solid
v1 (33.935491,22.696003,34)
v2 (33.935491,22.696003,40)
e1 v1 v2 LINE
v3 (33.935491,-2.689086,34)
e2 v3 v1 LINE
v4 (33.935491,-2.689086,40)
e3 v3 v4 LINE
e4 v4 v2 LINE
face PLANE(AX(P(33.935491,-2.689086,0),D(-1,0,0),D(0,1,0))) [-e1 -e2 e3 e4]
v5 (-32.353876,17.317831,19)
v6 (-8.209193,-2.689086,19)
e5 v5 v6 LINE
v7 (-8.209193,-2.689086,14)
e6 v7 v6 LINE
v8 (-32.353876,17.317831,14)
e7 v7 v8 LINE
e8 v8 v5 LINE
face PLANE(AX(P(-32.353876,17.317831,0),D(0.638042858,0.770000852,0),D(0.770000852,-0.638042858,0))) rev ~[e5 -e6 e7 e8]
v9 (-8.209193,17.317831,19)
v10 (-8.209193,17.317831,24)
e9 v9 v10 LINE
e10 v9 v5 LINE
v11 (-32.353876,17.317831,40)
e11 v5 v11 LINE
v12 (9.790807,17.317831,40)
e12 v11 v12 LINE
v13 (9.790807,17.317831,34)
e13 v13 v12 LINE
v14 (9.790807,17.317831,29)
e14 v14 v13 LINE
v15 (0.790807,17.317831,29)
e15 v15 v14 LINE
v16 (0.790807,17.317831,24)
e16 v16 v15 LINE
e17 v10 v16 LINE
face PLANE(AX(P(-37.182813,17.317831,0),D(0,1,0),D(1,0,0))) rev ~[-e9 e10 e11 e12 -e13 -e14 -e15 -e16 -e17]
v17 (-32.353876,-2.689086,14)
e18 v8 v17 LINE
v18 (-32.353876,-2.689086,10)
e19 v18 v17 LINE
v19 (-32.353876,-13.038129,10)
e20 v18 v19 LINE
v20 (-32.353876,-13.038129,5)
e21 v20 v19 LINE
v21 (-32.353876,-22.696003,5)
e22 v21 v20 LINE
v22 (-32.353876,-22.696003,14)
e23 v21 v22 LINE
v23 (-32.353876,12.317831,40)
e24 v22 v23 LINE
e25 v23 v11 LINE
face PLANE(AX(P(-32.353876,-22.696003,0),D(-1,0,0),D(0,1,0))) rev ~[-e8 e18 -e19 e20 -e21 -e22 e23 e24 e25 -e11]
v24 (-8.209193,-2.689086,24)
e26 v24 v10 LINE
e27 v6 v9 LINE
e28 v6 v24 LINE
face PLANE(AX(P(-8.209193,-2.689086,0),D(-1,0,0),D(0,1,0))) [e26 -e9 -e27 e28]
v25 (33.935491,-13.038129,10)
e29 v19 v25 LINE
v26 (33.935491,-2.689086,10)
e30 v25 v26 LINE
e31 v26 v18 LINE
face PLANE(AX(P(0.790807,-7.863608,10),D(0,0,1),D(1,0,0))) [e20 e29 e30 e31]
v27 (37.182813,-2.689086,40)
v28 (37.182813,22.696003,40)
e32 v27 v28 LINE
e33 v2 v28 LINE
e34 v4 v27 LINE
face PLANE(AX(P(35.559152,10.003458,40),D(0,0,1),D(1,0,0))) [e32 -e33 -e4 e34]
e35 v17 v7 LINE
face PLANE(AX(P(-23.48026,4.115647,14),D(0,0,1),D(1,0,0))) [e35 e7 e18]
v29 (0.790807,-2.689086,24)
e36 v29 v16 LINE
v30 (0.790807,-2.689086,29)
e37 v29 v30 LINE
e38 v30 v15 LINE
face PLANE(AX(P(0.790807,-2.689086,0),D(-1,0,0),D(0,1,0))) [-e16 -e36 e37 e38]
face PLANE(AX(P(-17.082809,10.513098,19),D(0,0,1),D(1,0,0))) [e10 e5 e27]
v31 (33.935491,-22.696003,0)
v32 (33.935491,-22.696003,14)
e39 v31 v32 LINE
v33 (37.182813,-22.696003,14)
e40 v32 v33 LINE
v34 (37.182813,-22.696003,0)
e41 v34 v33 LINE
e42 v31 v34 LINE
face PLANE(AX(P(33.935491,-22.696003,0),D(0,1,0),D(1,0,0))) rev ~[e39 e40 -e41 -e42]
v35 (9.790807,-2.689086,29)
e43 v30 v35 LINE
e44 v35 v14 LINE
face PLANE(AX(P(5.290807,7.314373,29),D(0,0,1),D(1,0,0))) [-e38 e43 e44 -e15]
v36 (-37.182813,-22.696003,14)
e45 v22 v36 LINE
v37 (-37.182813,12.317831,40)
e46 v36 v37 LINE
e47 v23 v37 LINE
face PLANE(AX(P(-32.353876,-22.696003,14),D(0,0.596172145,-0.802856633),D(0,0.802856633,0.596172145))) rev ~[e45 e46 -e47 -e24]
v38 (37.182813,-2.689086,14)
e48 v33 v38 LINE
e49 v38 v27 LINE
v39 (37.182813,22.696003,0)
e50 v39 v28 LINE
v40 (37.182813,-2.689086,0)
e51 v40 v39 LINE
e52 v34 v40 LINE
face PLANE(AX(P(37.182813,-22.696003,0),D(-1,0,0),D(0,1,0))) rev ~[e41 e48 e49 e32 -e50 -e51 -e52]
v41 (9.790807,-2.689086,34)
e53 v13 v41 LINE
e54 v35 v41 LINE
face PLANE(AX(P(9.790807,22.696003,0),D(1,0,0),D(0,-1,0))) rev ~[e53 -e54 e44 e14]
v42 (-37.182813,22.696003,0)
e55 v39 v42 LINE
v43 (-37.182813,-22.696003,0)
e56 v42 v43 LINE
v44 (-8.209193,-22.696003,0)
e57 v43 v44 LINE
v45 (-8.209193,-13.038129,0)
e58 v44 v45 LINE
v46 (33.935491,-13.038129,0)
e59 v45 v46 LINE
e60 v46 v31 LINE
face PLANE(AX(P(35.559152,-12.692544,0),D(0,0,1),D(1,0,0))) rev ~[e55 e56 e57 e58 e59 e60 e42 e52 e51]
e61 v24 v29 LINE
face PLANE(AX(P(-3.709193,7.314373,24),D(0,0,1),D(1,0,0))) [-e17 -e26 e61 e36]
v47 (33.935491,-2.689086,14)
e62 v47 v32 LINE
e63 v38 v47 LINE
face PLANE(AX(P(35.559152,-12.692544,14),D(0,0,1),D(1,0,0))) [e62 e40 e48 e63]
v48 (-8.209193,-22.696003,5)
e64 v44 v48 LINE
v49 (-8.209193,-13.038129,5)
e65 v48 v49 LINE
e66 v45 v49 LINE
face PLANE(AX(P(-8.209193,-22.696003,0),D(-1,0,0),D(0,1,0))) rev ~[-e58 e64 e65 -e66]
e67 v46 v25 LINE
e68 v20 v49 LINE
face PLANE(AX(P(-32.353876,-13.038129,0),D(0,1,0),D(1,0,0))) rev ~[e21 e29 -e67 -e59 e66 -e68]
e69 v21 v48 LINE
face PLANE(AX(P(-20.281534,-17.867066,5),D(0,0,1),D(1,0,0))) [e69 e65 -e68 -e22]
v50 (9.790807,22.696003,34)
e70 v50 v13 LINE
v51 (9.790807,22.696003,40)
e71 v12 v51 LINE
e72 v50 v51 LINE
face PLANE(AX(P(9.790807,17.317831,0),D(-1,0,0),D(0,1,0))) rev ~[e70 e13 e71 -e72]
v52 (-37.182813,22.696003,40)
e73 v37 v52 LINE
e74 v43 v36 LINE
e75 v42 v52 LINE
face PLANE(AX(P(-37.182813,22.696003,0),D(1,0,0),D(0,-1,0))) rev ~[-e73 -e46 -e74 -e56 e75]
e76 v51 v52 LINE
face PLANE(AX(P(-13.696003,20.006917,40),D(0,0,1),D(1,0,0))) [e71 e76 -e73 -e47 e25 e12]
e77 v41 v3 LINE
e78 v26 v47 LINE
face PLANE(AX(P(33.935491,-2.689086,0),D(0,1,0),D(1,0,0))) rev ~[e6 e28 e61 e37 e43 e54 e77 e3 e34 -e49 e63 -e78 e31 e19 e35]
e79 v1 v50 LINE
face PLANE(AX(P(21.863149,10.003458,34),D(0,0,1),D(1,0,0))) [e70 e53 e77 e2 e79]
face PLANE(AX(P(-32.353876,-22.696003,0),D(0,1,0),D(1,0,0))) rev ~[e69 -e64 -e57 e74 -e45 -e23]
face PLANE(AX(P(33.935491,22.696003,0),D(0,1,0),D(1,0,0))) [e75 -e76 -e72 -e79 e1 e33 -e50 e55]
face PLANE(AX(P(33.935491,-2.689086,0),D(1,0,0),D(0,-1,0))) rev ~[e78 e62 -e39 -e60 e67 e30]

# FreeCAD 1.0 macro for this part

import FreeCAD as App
import Part
import Sketcher
Q = App.Units.Quantity

doc = App.newDocument("Part")
body = doc.addObject("PartDesign::Body", "Body")

# Sketch on XY plane
sketch1 = doc.addObject("Sketcher::SketchObject", "Sketch")
body.addObject(sketch1)
sketch1.AttachmentSupport = (doc.XY_Plane, [""])
sketch1.MapMode = "FlatFace"
sketch1.addGeometry(Part.LineSegment(App.Vector(-37.2, 17.3, 0), App.Vector(-37.2, -22.7, 0)), False)
sketch1.addGeometry(Part.LineSegment(App.Vector(-37.2, -22.7, 0), App.Vector(-32.4, -22.7, 0)), False)
sketch1.addGeometry(Part.LineSegment(App.Vector(-32.4, -22.7, 0), App.Vector(-32.4, 17.3, 0)), False)
sketch1.addGeometry(Part.LineSegment(App.Vector(-32.4, 17.3, 0), App.Vector(-37.2, 17.3, 0)), False)
sketch1.addConstraint(Sketcher.Constraint("Coincident", 0, 2, 1, 1))
sketch1.addConstraint(Sketcher.Constraint("Coincident", 1, 2, 2, 1))
sketch1.addConstraint(Sketcher.Constraint("Coincident", 2, 2, 3, 1))
sketch1.addConstraint(Sketcher.Constraint("Coincident", 3, 2, 0, 1))
sketch1.addConstraint(Sketcher.Constraint("Vertical", 0))
sketch1.addConstraint(Sketcher.Constraint("Horizontal", 1))
sketch1.addConstraint(Sketcher.Constraint("Vertical", 2))
sketch1.addConstraint(Sketcher.Constraint("Horizontal", 3))
sketch1.addConstraint(Sketcher.Constraint("DistanceX", 1, 1, 1, 2, Q("4.828937 mm")))
sketch1.addConstraint(Sketcher.Constraint("DistanceY", 0, 2, 0, 1, Q("40.013834 mm")))
sketch1.addConstraint(Sketcher.Constraint("DistanceY", -1, 1, 2, 2, Q("17.317831 mm")))
sketch1.addConstraint(Sketcher.Constraint("DistanceX", 0, 2, -1, 1, Q("37.182813 mm")))
pad1 = doc.addObject("PartDesign::Pad", "Pad")
body.addObject(pad1)
pad1.Profile = sketch1
pad1.Length = 40

# Sketch on YZ plane
sketch2 = doc.addObject("Sketcher::SketchObject", "Sketch001")
body.addObject(sketch2)
sketch2.AttachmentSupport = (doc.YZ_Plane, [""])
sketch2.MapMode = "FlatFace"
sketch2.AttachmentOffset = App.Placement(App.Vector(0, 0, -32.353876), App.Rotation())
sketch2.addGeometry(Part.LineSegment(App.Vector(-23, 40, 0), App.Vector(-23, 14, 0)), False)
sketch2.addGeometry(Part.LineSegment(App.Vector(-23, 14, 0), App.Vector(12, 40, 0)), False)
sketch2.addGeometry(Part.LineSegment(App.Vector(12, 40, 0), App.Vector(-23, 40, 0)), False)
sketch2.addConstraint(Sketcher.Constraint("Coincident", 0, 2, 1, 1))
sketch2.addConstraint(Sketcher.Constraint("Coincident", 1, 2, 2, 1))
sketch2.addConstraint(Sketcher.Constraint("Coincident", 2, 2, 0, 1))
sketch2.addConstraint(Sketcher.Constraint("Vertical", 0))
sketch2.addConstraint(Sketcher.Constraint("Horizontal", 2))
sketch2.addConstraint(Sketcher.Constraint("DistanceY", 0, 2, 0, 1, Q("26 mm")))
sketch2.addConstraint(Sketcher.Constraint("DistanceY", -1, 1, 0, 2, Q("14 mm")))
sketch2.addConstraint(Sketcher.Constraint("DistanceX", 2, 2, 2, 1, Q("35.013834 mm")))
sketch2.addConstraint(Sketcher.Constraint("DistanceX", -1, 1, 1, 2, Q("12.317831 mm")))
pocket1 = doc.addObject("PartDesign::Pocket", "Pocket")
body.addObject(pocket1)
pocket1.Profile = sketch2
pocket1.Length = 25

# Sketch on XY plane
sketch3 = doc.addObject("Sketcher::SketchObject", "Sketch002")
body.addObject(sketch3)
sketch3.AttachmentSupport = (doc.XY_Plane, [""])
sketch3.MapMode = "FlatFace"
sketch3.addGeometry(Part.LineSegment(App.Vector(-37, 23, 0), App.Vector(-37, 17, 0)), False)
sketch3.addGeometry(Part.LineSegment(App.Vector(-37, 17, 0), App.Vector(10, 17, 0)), False)
sketch3.addGeometry(Part.LineSegment(App.Vector(10, 17, 0), App.Vector(10, 23, 0)), False)
sketch3.addGeometry(Part.LineSegment(App.Vector(10, 23, 0), App.Vector(-37, 23, 0)), False)
sketch3.addConstraint(Sketcher.Constraint("Coincident", 0, 2, 1, 1))
sketch3.addConstraint(Sketcher.Constraint("Coincident", 1, 2, 2, 1))
sketch3.addConstraint(Sketcher.Constraint("Coincident", 2, 2, 3, 1))
sketch3.addConstraint(Sketcher.Constraint("Coincident", 3, 2, 0, 1))
sketch3.addConstraint(Sketcher.Constraint("Vertical", 0))
sketch3.addConstraint(Sketcher.Constraint("Horizontal", 1))
sketch3.addConstraint(Sketcher.Constraint("Vertical", 2))
sketch3.addConstraint(Sketcher.Constraint("Horizontal", 3))
sketch3.addConstraint(Sketcher.Constraint("DistanceX", 1, 1, 1, 2, Q("46.973621 mm")))
sketch3.addConstraint(Sketcher.Constraint("DistanceY", 0, 2, 0, 1, Q("5.378172 mm")))
sketch3.addConstraint(Sketcher.Constraint("DistanceY", -1, 1, 0, 2, Q("17.317831 mm")))
sketch3.addConstraint(Sketcher.Constraint("DistanceX", 0, 2, -1, 1, Q("37.182813 mm")))
pad2 = doc.addObject("PartDesign::Pad", "Pad001")
body.addObject(pad2)
pad2.Profile = sketch3
pad2.Length = 40

# Sketch on XY plane
sketch4 = doc.addObject("Sketcher::SketchObject", "Sketch003")
body.addObject(sketch4)
sketch4.AttachmentSupport = (doc.XY_Plane, [""])
sketch4.MapMode = "FlatFace"
sketch4.addGeometry(Part.LineSegment(App.Vector(-8, -3, 0), App.Vector(-32, 17, 0)), False)
sketch4.addGeometry(Part.LineSegment(App.Vector(-32, 17, 0), App.Vector(-32, -3, 0)), False)
sketch4.addGeometry(Part.LineSegment(App.Vector(-32, -3, 0), App.Vector(-8, -3, 0)), False)
sketch4.addConstraint(Sketcher.Constraint("Coincident", 0, 2, 1, 1))
sketch4.addConstraint(Sketcher.Constraint("Coincident", 1, 2, 2, 1))
sketch4.addConstraint(Sketcher.Constraint("Coincident", 2, 2, 0, 1))
sketch4.addConstraint(Sketcher.Constraint("Vertical", 1))
sketch4.addConstraint(Sketcher.Constraint("Horizontal", 2))
sketch4.addConstraint(Sketcher.Constraint("DistanceX", 2, 1, 2, 2, Q("24.144684 mm")))
sketch4.addConstraint(Sketcher.Constraint("DistanceY", 1, 2, 1, 1, Q("20.006917 mm")))
sketch4.addConstraint(Sketcher.Constraint("DistanceY", -1, 1, 0, 2, Q("17.317831 mm")))
sketch4.addConstraint(Sketcher.Constraint("DistanceX", 0, 2, -1, 1, Q("32.353876 mm")))
pad3 = doc.addObject("PartDesign::Pad", "Pad002")
body.addObject(pad3)
pad3.Profile = sketch4
pad3.Length = 14

# Sketch on XY plane
sketch5 = doc.addObject("Sketcher::SketchObject", "Sketch004")
body.addObject(sketch5)
sketch5.AttachmentSupport = (doc.XY_Plane, [""])
sketch5.MapMode = "FlatFace"
sketch5.addGeometry(Part.LineSegment(App.Vector(-8, 17, 0), App.Vector(-32, 17, 0)), False)
sketch5.addGeometry(Part.LineSegment(App.Vector(-32, 17, 0), App.Vector(-8, -3, 0)), False)
sketch5.addGeometry(Part.LineSegment(App.Vector(-8, -3, 0), App.Vector(-8, 17, 0)), False)
sketch5.addConstraint(Sketcher.Constraint("Coincident", 0, 2, 1, 1))
sketch5.addConstraint(Sketcher.Constraint("Coincident", 1, 2, 2, 1))
sketch5.addConstraint(Sketcher.Constraint("Coincident", 2, 2, 0, 1))
sketch5.addConstraint(Sketcher.Constraint("Horizontal", 0))
sketch5.addConstraint(Sketcher.Constraint("Vertical", 2))
sketch5.addConstraint(Sketcher.Constraint("DistanceX", 0, 2, 0, 1, Q("24.144684 mm")))
sketch5.addConstraint(Sketcher.Constraint("DistanceY", 2, 1, 2, 2, Q("20.006917 mm")))
sketch5.addConstraint(Sketcher.Constraint("DistanceY", -1, 1, 0, 2, Q("17.317831 mm")))
sketch5.addConstraint(Sketcher.Constraint("DistanceX", 0, 2, -1, 1, Q("32.353876 mm")))
pad4 = doc.addObject("PartDesign::Pad", "Pad003")
body.addObject(pad4)
pad4.Profile = sketch5
pad4.Length = 19

# Sketch on XY plane
sketch6 = doc.addObject("Sketcher::SketchObject", "Sketch005")
body.addObject(sketch6)
sketch6.AttachmentSupport = (doc.XY_Plane, [""])
sketch6.MapMode = "FlatFace"
sketch6.addGeometry(Part.LineSegment(App.Vector(-8, 17, 0), App.Vector(-8, -3, 0)), False)
sketch6.addGeometry(Part.LineSegment(App.Vector(-8, -3, 0), App.Vector(1, -3, 0)), False)
sketch6.addGeometry(Part.LineSegment(App.Vector(1, -3, 0), App.Vector(1, 17, 0)), False)
sketch6.addGeometry(Part.LineSegment(App.Vector(1, 17, 0), App.Vector(-8, 17, 0)), False)
sketch6.addConstraint(Sketcher.Constraint("Coincident", 0, 2, 1, 1))
sketch6.addConstraint(Sketcher.Constraint("Coincident", 1, 2, 2, 1))
sketch6.addConstraint(Sketcher.Constraint("Coincident", 2, 2, 3, 1))
sketch6.addConstraint(Sketcher.Constraint("Coincident", 3, 2, 0, 1))
sketch6.addConstraint(Sketcher.Constraint("Vertical", 0))
sketch6.addConstraint(Sketcher.Constraint("Horizontal", 1))
sketch6.addConstraint(Sketcher.Constraint("Vertical", 2))
sketch6.addConstraint(Sketcher.Constraint("Horizontal", 3))
sketch6.addConstraint(Sketcher.Constraint("DistanceX", 1, 1, 1, 2, Q("9 mm")))
sketch6.addConstraint(Sketcher.Constraint("DistanceY", 0, 2, 0, 1, Q("20.006917 mm")))
sketch6.addConstraint(Sketcher.Constraint("DistanceY", -1, 1, 2, 2, Q("17.317831 mm")))
sketch6.addConstraint(Sketcher.Constraint("DistanceX", 0, 2, -1, 1, Q("8.209193 mm")))
pad5 = doc.addObject("PartDesign::Pad", "Pad004")
body.addObject(pad5)
pad5.Profile = sketch6
pad5.Length = 24

# Sketch on XY plane
sketch7 = doc.addObject("Sketcher::SketchObject", "Sketch006")
body.addObject(sketch7)
sketch7.AttachmentSupport = (doc.XY_Plane, [""])
sketch7.MapMode = "FlatFace"
sketch7.addGeometry(Part.LineSegment(App.Vector(1, 17, 0), App.Vector(1, -3, 0)), False)
sketch7.addGeometry(Part.LineSegment(App.Vector(1, -3, 0), App.Vector(10, -3, 0)), False)
sketch7.addGeometry(Part.LineSegment(App.Vector(10, -3, 0), App.Vector(10, 17, 0)), False)
sketch7.addGeometry(Part.LineSegment(App.Vector(10, 17, 0), App.Vector(1, 17, 0)), False)
sketch7.addConstraint(Sketcher.Constraint("Coincident", 0, 2, 1, 1))
sketch7.addConstraint(Sketcher.Constraint("Coincident", 1, 2, 2, 1))
sketch7.addConstraint(Sketcher.Constraint("Coincident", 2, 2, 3, 1))
sketch7.addConstraint(Sketcher.Constraint("Coincident", 3, 2, 0, 1))
sketch7.addConstraint(Sketcher.Constraint("Vertical", 0))
sketch7.addConstraint(Sketcher.Constraint("Horizontal", 1))
sketch7.addConstraint(Sketcher.Constraint("Vertical", 2))
sketch7.addConstraint(Sketcher.Constraint("Horizontal", 3))
sketch7.addConstraint(Sketcher.Constraint("DistanceX", 1, 1, 1, 2, Q("9 mm")))
sketch7.addConstraint(Sketcher.Constraint("DistanceY", 0, 2, 0, 1, Q("20.006917 mm")))
sketch7.addConstraint(Sketcher.Constraint("DistanceY", -1, 1, 2, 2, Q("17.317831 mm")))
sketch7.addConstraint(Sketcher.Constraint("DistanceX", -1, 1, 0, 2, Q("0.790807 mm")))
pad6 = doc.addObject("PartDesign::Pad", "Pad005")
body.addObject(pad6)
pad6.Profile = sketch7
pad6.Length = 29

# Sketch on XY plane
sketch8 = doc.addObject("Sketcher::SketchObject", "Sketch007")
body.addObject(sketch8)
sketch8.AttachmentSupport = (doc.XY_Plane, [""])
sketch8.MapMode = "FlatFace"
sketch8.addGeometry(Part.LineSegment(App.Vector(34, 23, 0), App.Vector(10, 23, 0)), False)
sketch8.addGeometry(Part.LineSegment(App.Vector(10, 23, 0), App.Vector(10, -3, 0)), False)
sketch8.addGeometry(Part.LineSegment(App.Vector(10, -3, 0), App.Vector(34, -3, 0)), False)
sketch8.addGeometry(Part.LineSegment(App.Vector(34, -3, 0), App.Vector(34, 23, 0)), False)
sketch8.addConstraint(Sketcher.Constraint("Coincident", 0, 2, 1, 1))
sketch8.addConstraint(Sketcher.Constraint("Coincident", 1, 2, 2, 1))
sketch8.addConstraint(Sketcher.Constraint("Coincident", 2, 2, 3, 1))
sketch8.addConstraint(Sketcher.Constraint("Coincident", 3, 2, 0, 1))
sketch8.addConstraint(Sketcher.Constraint("Horizontal", 0))
sketch8.addConstraint(Sketcher.Constraint("Vertical", 1))
sketch8.addConstraint(Sketcher.Constraint("Horizontal", 2))
sketch8.addConstraint(Sketcher.Constraint("Vertical", 3))
sketch8.addConstraint(Sketcher.Constraint("DistanceY", 1, 2, 1, 1, Q("25.385089 mm")))
sketch8.addConstraint(Sketcher.Constraint("DistanceX", 0, 2, 0, 1, Q("24.144684 mm")))
sketch8.addConstraint(Sketcher.Constraint("DistanceX", -1, 1, 2, 2, Q("33.935491 mm")))
sketch8.addConstraint(Sketcher.Constraint("DistanceY", -1, 1, 0, 2, Q("22.696003 mm")))
pad7 = doc.addObject("PartDesign::Pad", "Pad006")
body.addObject(pad7)
pad7.Profile = sketch8
pad7.Length = 34

# Sketch on XY plane
sketch9 = doc.addObject("Sketcher::SketchObject", "Sketch008")
body.addObject(sketch9)
sketch9.AttachmentSupport = (doc.XY_Plane, [""])
sketch9.MapMode = "FlatFace"
sketch9.addGeometry(Part.LineSegment(App.Vector(-32, -3, 0), App.Vector(-32, -13, 0)), False)
sketch9.addGeometry(Part.LineSegment(App.Vector(-32, -13, 0), App.Vector(34, -13, 0)), False)
sketch9.addGeometry(Part.LineSegment(App.Vector(34, -13, 0), App.Vector(34, -3, 0)), False)
sketch9.addGeometry(Part.LineSegment(App.Vector(34, -3, 0), App.Vector(-32, -3, 0)), False)
sketch9.addConstraint(Sketcher.Constraint("Coincident", 0, 2, 1, 1))
sketch9.addConstraint(Sketcher.Constraint("Coincident", 1, 2, 2, 1))
sketch9.addConstraint(Sketcher.Constraint("Coincident", 2, 2, 3, 1))
sketch9.addConstraint(Sketcher.Constraint("Coincident", 3, 2, 0, 1))
sketch9.addConstraint(Sketcher.Constraint("Vertical", 0))
sketch9.addConstraint(Sketcher.Constraint("Horizontal", 1))
sketch9.addConstraint(Sketcher.Constraint("Vertical", 2))
sketch9.addConstraint(Sketcher.Constraint("Horizontal", 3))
sketch9.addConstraint(Sketcher.Constraint("DistanceX", 1, 1, 1, 2, Q("66.289368 mm")))
sketch9.addConstraint(Sketcher.Constraint("DistanceY", 0, 2, 0, 1, Q("10.349043 mm")))
sketch9.addConstraint(Sketcher.Constraint("DistanceY", 0, 2, -1, 1, Q("13.038129 mm")))
sketch9.addConstraint(Sketcher.Constraint("DistanceX", -1, 1, 1, 2, Q("33.935491 mm")))
pad8 = doc.addObject("PartDesign::Pad", "Pad007")
body.addObject(pad8)
pad8.Profile = sketch9
pad8.Length = 10

# Sketch on XY plane
sketch10 = doc.addObject("Sketcher::SketchObject", "Sketch009")
body.addObject(sketch10)
sketch10.AttachmentSupport = (doc.XY_Plane, [""])
sketch10.MapMode = "FlatFace"
sketch10.addGeometry(Part.LineSegment(App.Vector(-32, -13, 0), App.Vector(-32, -23, 0)), False)
sketch10.addGeometry(Part.LineSegment(App.Vector(-32, -23, 0), App.Vector(-8, -23, 0)), False)
sketch10.addGeometry(Part.LineSegment(App.Vector(-8, -23, 0), App.Vector(-8, -13, 0)), False)
sketch10.addGeometry(Part.LineSegment(App.Vector(-8, -13, 0), App.Vector(-32, -13, 0)), False)
sketch10.addConstraint(Sketcher.Constraint("Coincident", 0, 2, 1, 1))
sketch10.addConstraint(Sketcher.Constraint("Coincident", 1, 2, 2, 1))
sketch10.addConstraint(Sketcher.Constraint("Coincident", 2, 2, 3, 1))
sketch10.addConstraint(Sketcher.Constraint("Coincident", 3, 2, 0, 1))
sketch10.addConstraint(Sketcher.Constraint("Vertical", 0))
sketch10.addConstraint(Sketcher.Constraint("Horizontal", 1))
sketch10.addConstraint(Sketcher.Constraint("Vertical", 2))
sketch10.addConstraint(Sketcher.Constraint("Horizontal", 3))
sketch10.addConstraint(Sketcher.Constraint("DistanceX", 1, 1, 1, 2, Q("24.144684 mm")))
sketch10.addConstraint(Sketcher.Constraint("DistanceY", 0, 2, 0, 1, Q("9.657874 mm")))
sketch10.addConstraint(Sketcher.Constraint("DistanceY", 2, 2, -1, 1, Q("13.038129 mm")))
sketch10.addConstraint(Sketcher.Constraint("DistanceX", 0, 2, -1, 1, Q("32.353876 mm")))
pad9 = doc.addObject("PartDesign::Pad", "Pad008")
body.addObject(pad9)
pad9.Profile = sketch10
pad9.Length = 5

# Sketch on XY plane
sketch11 = doc.addObject("Sketcher::SketchObject", "Sketch010")
body.addObject(sketch11)
sketch11.AttachmentSupport = (doc.XY_Plane, [""])
sketch11.MapMode = "FlatFace"
sketch11.addGeometry(Part.LineSegment(App.Vector(33.9, 22.7, 0), App.Vector(33.9, -2.7, 0)), False)
sketch11.addGeometry(Part.LineSegment(App.Vector(33.9, -2.7, 0), App.Vector(37.2, -2.7, 0)), False)
sketch11.addGeometry(Part.LineSegment(App.Vector(37.2, -2.7, 0), App.Vector(37.2, 22.7, 0)), False)
sketch11.addGeometry(Part.LineSegment(App.Vector(37.2, 22.7, 0), App.Vector(33.9, 22.7, 0)), False)
sketch11.addConstraint(Sketcher.Constraint("Coincident", 0, 2, 1, 1))
sketch11.addConstraint(Sketcher.Constraint("Coincident", 1, 2, 2, 1))
sketch11.addConstraint(Sketcher.Constraint("Coincident", 2, 2, 3, 1))
sketch11.addConstraint(Sketcher.Constraint("Coincident", 3, 2, 0, 1))
sketch11.addConstraint(Sketcher.Constraint("Vertical", 0))
sketch11.addConstraint(Sketcher.Constraint("Horizontal", 1))
sketch11.addConstraint(Sketcher.Constraint("Vertical", 2))
sketch11.addConstraint(Sketcher.Constraint("Horizontal", 3))
sketch11.addConstraint(Sketcher.Constraint("DistanceX", 1, 1, 1, 2, Q("3.247322 mm")))
sketch11.addConstraint(Sketcher.Constraint("DistanceY", 0, 2, 0, 1, Q("25.385089 mm")))
sketch11.addConstraint(Sketcher.Constraint("DistanceX", -1, 1, 0, 2, Q("33.935491 mm")))
sketch11.addConstraint(Sketcher.Constraint("DistanceY", 0, 2, -1, 1, Q("2.689086 mm")))
pad10 = doc.addObject("PartDesign::Pad", "Pad009")
body.addObject(pad10)
pad10.Profile = sketch11
pad10.Length = 40

# Sketch on XY plane
sketch12 = doc.addObject("Sketcher::SketchObject", "Sketch011")
body.addObject(sketch12)
sketch12.AttachmentSupport = (doc.XY_Plane, [""])
sketch12.MapMode = "FlatFace"
sketch12.addGeometry(Part.LineSegment(App.Vector(33.9, -2.7, 0), App.Vector(33.9, -22.7, 0)), False)
sketch12.addGeometry(Part.LineSegment(App.Vector(33.9, -22.7, 0), App.Vector(37.2, -22.7, 0)), False)
sketch12.addGeometry(Part.LineSegment(App.Vector(37.2, -22.7, 0), App.Vector(37.2, -2.7, 0)), False)
sketch12.addGeometry(Part.LineSegment(App.Vector(37.2, -2.7, 0), App.Vector(33.9, -2.7, 0)), False)
sketch12.addConstraint(Sketcher.Constraint("Coincident", 0, 2, 1, 1))
sketch12.addConstraint(Sketcher.Constraint("Coincident", 1, 2, 2, 1))
sketch12.addConstraint(Sketcher.Constraint("Coincident", 2, 2, 3, 1))
sketch12.addConstraint(Sketcher.Constraint("Coincident", 3, 2, 0, 1))
sketch12.addConstraint(Sketcher.Constraint("Vertical", 0))
sketch12.addConstraint(Sketcher.Constraint("Horizontal", 1))
sketch12.addConstraint(Sketcher.Constraint("Vertical", 2))
sketch12.addConstraint(Sketcher.Constraint("Horizontal", 3))
sketch12.addConstraint(Sketcher.Constraint("DistanceX", 1, 1, 1, 2, Q("3.247322 mm")))
sketch12.addConstraint(Sketcher.Constraint("DistanceY", 0, 2, 0, 1, Q("20.006917 mm")))
sketch12.addConstraint(Sketcher.Constraint("DistanceX", -1, 1, 0, 2, Q("33.935491 mm")))
sketch12.addConstraint(Sketcher.Constraint("DistanceY", 0, 2, -1, 1, Q("22.696003 mm")))
pad11 = doc.addObject("PartDesign::Pad", "Pad010")
body.addObject(pad11)
pad11.Profile = sketch12
pad11.Length = 14

doc.recompute()
